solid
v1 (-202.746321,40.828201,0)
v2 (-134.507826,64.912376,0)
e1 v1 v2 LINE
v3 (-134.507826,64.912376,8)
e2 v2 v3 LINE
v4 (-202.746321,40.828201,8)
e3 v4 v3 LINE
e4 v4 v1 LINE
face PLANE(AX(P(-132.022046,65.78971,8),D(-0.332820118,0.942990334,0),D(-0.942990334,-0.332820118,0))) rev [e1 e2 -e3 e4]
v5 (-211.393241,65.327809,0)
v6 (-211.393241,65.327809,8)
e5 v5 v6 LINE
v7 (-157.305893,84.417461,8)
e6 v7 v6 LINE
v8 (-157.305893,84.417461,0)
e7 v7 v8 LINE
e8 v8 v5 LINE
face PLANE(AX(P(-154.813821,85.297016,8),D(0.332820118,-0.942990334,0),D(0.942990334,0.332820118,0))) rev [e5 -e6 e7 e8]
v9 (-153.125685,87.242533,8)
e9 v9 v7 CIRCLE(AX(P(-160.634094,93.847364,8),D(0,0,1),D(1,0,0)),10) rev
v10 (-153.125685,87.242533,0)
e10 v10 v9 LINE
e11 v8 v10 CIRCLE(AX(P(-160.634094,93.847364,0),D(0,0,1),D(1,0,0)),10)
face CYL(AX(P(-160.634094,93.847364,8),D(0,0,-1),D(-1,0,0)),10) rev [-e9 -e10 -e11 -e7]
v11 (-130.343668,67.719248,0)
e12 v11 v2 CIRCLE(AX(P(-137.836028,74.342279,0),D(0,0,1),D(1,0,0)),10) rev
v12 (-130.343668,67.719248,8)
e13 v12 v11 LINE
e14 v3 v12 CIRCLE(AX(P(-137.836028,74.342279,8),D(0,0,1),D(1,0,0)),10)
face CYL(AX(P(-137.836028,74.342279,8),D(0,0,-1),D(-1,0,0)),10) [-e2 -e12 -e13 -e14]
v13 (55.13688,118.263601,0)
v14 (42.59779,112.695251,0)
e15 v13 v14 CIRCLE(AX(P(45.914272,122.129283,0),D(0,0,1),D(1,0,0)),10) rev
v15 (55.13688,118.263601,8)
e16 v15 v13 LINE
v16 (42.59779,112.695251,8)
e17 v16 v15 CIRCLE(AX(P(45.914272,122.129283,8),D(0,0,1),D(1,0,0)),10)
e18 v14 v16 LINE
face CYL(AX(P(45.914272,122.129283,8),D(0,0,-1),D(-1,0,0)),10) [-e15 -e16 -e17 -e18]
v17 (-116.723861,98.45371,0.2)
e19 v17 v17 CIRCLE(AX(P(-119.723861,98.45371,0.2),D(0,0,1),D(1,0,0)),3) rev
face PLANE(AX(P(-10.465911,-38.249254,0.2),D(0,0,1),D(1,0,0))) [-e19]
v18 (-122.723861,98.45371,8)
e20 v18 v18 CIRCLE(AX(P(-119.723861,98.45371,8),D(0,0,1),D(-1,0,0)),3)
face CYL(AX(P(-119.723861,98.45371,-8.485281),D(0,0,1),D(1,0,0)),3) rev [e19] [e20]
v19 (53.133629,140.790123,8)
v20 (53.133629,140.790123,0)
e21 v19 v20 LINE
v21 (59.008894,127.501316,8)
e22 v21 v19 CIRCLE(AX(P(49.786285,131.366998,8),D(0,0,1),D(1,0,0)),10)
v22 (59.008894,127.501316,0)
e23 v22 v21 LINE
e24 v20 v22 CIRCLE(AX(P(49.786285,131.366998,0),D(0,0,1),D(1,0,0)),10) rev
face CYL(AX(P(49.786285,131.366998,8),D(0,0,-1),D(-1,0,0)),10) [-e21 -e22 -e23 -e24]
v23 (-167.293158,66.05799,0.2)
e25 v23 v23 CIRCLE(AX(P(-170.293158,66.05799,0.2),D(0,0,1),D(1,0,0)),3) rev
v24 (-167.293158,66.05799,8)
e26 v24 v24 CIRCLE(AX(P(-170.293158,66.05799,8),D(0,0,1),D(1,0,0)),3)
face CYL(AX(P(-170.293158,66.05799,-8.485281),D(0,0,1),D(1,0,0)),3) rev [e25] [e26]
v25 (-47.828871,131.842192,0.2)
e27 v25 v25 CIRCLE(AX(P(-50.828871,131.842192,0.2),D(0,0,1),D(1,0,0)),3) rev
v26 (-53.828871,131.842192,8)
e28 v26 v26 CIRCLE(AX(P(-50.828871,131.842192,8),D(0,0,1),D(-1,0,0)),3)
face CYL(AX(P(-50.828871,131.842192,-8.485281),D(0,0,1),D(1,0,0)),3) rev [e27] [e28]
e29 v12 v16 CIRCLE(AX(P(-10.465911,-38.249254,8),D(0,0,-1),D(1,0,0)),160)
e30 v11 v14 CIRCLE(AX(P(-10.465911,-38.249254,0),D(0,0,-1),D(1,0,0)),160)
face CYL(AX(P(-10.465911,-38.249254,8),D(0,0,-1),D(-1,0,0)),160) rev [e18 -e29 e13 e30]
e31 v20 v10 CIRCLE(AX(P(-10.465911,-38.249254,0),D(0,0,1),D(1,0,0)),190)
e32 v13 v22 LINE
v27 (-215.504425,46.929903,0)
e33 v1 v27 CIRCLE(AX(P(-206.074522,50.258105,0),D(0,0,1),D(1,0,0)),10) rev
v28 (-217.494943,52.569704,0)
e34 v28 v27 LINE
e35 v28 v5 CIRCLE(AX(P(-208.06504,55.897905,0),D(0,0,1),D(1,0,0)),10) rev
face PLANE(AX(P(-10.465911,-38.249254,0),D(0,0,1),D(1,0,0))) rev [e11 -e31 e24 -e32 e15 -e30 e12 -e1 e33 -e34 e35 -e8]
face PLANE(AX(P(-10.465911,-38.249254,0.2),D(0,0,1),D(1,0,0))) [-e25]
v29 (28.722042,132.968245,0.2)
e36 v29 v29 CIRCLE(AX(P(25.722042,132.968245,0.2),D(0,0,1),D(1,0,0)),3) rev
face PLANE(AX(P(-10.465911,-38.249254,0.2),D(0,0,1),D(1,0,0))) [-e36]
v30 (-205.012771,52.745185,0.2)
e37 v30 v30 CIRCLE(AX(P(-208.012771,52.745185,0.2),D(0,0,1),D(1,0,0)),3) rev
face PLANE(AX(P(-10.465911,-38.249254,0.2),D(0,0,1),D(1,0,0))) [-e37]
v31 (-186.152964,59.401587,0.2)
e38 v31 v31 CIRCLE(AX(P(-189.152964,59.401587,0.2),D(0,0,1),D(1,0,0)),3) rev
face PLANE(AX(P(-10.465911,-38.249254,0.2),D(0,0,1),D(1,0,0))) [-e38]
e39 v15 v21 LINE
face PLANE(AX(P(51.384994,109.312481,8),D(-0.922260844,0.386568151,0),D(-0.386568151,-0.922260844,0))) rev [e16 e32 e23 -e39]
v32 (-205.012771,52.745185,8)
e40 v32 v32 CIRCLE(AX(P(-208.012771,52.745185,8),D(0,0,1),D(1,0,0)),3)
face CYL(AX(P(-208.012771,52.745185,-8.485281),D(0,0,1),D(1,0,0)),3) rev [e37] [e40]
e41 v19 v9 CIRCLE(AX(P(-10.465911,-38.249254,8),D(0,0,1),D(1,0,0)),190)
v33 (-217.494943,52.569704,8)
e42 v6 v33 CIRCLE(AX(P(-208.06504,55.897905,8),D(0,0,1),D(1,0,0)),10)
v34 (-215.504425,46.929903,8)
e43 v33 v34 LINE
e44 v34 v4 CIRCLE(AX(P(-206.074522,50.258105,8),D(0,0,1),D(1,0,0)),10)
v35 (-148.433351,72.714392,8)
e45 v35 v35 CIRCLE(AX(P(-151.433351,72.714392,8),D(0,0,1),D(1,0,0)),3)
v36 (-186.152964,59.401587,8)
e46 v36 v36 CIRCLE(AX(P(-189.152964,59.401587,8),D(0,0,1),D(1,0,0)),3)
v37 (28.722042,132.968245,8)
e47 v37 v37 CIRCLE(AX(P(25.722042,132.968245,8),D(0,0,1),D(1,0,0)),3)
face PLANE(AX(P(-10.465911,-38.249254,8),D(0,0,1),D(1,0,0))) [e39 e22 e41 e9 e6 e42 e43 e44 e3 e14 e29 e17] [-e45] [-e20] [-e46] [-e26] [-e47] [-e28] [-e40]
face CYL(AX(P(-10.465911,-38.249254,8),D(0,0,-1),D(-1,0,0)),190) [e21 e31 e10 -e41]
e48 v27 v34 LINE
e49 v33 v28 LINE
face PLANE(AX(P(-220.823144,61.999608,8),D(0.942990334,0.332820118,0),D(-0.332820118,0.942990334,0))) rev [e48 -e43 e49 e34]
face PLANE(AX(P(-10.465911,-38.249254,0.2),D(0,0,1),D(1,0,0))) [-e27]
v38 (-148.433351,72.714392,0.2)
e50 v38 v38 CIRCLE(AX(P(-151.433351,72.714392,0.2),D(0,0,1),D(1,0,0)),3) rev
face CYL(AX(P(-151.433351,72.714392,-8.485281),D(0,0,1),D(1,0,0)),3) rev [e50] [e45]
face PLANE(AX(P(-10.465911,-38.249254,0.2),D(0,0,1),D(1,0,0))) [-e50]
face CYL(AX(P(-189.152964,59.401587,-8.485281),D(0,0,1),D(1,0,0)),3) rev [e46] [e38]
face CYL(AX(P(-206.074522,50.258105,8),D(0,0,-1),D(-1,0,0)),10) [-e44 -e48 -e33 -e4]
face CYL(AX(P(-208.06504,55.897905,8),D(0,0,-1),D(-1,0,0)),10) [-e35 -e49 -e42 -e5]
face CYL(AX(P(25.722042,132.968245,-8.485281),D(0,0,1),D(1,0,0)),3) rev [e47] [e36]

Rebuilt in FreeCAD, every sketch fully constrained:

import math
import FreeCAD as App
import Part
import Sketcher

V = App.Vector


def edges_at(feature, points):
    """Names of the edges that pass closest to the given points."""
    edges = feature.Shape.Edges
    near = lambda p: min(range(len(edges)), key=lambda i: edges[i].distToShape(Part.Vertex(*p))[0])
    return sorted({f"Edge{near(p) + 1}" for p in points})

doc = App.newDocument("Part")
params = doc.addObject("Spreadsheet::Sheet", "Params")
for row, (alias, value) in enumerate([
    ("sketch1_radius", "160 mm"),
    ("sketch1_radius2", "190 mm"),
    ("sketch1_length", "85 mm"),
    ("sketch1_length2", "70 mm"),
    ("pad1_length", "8 mm"),
    ("sketch2_diameter", "6 mm"),
    ("pocket1_length", "7.8 mm"),
    ("fillet_radius", "10 mm"),
], start=1):
    params.set(f"A{row}", alias)
    params.set(f"B{row}", "=" + value)
    params.setAlias(f"B{row}", alias)

body = doc.addObject("PartDesign::Body", "Body")

sketch1 = body.newObject("Sketcher::SketchObject", "Sketch")
sketch1.AttachmentSupport = (doc.getObject("XY_Plane"), [""])
sketch1.MapMode = "FlatFace"
sketch1.addGeometry([
    Part.LineSegment(V(-212.176224, 37.5, 0), V(-132.022046, 65.78971, 0)),
    Part.ArcOfCircle(Part.Circle(V(-10.465911, -38.249254, 0), V(0, 0, 1), 160), math.radians(67.258872), math.radians(139.440035)),
    Part.LineSegment(V(51.384994, 109.312481, 0), V(62.982038, 136.980306, 0)),
    Part.ArcOfCircle(Part.Circle(V(-10.465911, -38.249254, 0), V(0, 0, 1), 190), math.radians(67.258872), math.radians(139.440035)),
    Part.LineSegment(V(-154.813821, 85.297016, 0), V(-220.823144, 61.999608, 0)),
    Part.LineSegment(V(-220.823144, 61.999608, 0), V(-212.176224, 37.5, 0)),
], False)
sketch1.addConstraint([
    Sketcher.Constraint("Coincident", 0, 2, 1, 2),
    Sketcher.Constraint("Coincident", 1, 1, 2, 1),
    Sketcher.Constraint("Coincident", 2, 2, 3, 1),
    Sketcher.Constraint("Coincident", 3, 2, 4, 1),
    Sketcher.Constraint("Coincident", 4, 2, 5, 1),
    Sketcher.Constraint("Coincident", 5, 2, 0, 1),
    Sketcher.Constraint("Coincident", 3, 3, 1, 3),
    Sketcher.Constraint("Parallel", 0, 4),
    Sketcher.Constraint("Perpendicular", 4, 5),
    Sketcher.Constraint("Radius", 1, 160.0),
    Sketcher.Constraint("Radius", 3, 190.0),
    Sketcher.Constraint("Distance", 0, 85.0),
    Sketcher.Constraint("Distance", 4, 70.0),
    Sketcher.Constraint("DistanceY", -1, 1, 5, 2, 37.5),
    Sketcher.Constraint("DistanceX", 4, 2, 0, 2, 88.801099),
    Sketcher.Constraint("DistanceX", 1, 3, -1, 1, 10.465911),
    Sketcher.Constraint("DistanceY", -1, 1, 1, 1, 109.312481),
    Sketcher.Constraint("DistanceX", -1, 1, 2, 2, 62.982038),
    Sketcher.Constraint("DistanceX", 0, 2, 1, 1, 183.407039),
])
sketch1.setExpression("Constraints[9]", "Params.sketch1_radius")
sketch1.setExpression("Constraints[10]", "Params.sketch1_radius2")
sketch1.setExpression("Constraints[11]", "Params.sketch1_length")
sketch1.setExpression("Constraints[12]", "Params.sketch1_length2")
pad1 = body.newObject("PartDesign::Pad", "Pad")
pad1.Profile = sketch1
pad1.setExpression("Length", "Params.pad1_length")

sketch2 = body.newObject("Sketcher::SketchObject", "Sketch001")
sketch2.AttachmentSupport = (doc.getObject("XY_Plane"), [""])
sketch2.MapMode = "FlatFace"
sketch2.AttachmentOffset = App.Placement(V(0, 0, 8), App.Rotation())
sketch2.addGeometry([
    Part.Circle(V(-208.012771, 52.745185, 0), V(0, 0, 1), 3),
    Part.Circle(V(-189.152964, 59.401587, 0), V(0, 0, 1), 3),
    Part.Circle(V(-170.293158, 66.05799, 0), V(0, 0, 1), 3),
    Part.Circle(V(-151.433351, 72.714392, 0), V(0, 0, 1), 3),
    Part.Circle(V(25.722042, 132.968245, 0), V(0, 0, 1), 3),
    Part.Circle(V(-50.828871, 131.842192, 0), V(0, 0, 1), 3),
    Part.Circle(V(-119.723861, 98.45371, 0), V(0, 0, 1), 3),
], False)
sketch2.addConstraint([
    Sketcher.Constraint("Equal", 0, 1),
    Sketcher.Constraint("Equal", 1, 2),
    Sketcher.Constraint("Equal", 2, 3),
    Sketcher.Constraint("Equal", 3, 4),
    Sketcher.Constraint("Equal", 4, 5),
    Sketcher.Constraint("Equal", 5, 6),
    Sketcher.Constraint("Diameter", 0, 6.0),
    Sketcher.Constraint("DistanceX", 2, 3, 4, 3, 196.0152),
    Sketcher.Constraint("DistanceY", 3, 3, 5, 3, 59.1278),
    Sketcher.Constraint("DistanceX", 0, 3, 5, 3, 157.1839),
    Sketcher.Constraint("DistanceX", 0, 3, -1, 1, 208.012771),
    Sketcher.Constraint("DistanceY", -1, 1, 2, 3, 66.05799),
    Sketcher.Constraint("DistanceX", 3, 3, -1, 1, 151.433351),
    Sketcher.Constraint("DistanceY", -1, 1, 3, 3, 72.714392),
    Sketcher.Constraint("DistanceX", 6, 3, -1, 1, 119.723861),
    Sketcher.Constraint("DistanceY", -1, 1, 6, 3, 98.45371),
    Sketcher.Constraint("DistanceY", 1, 3, 4, 3, 73.566658),
    Sketcher.Constraint("DistanceY", 0, 3, 4, 3, 80.22306),
    Sketcher.Constraint("DistanceY", -1, 1, 0, 3, 52.745185),
    Sketcher.Constraint("DistanceX", 1, 3, -1, 1, 189.152964),
    Sketcher.Constraint("DistanceX", 2, 3, -1, 1, 170.293158),
])
sketch2.setExpression("Constraints[6]", "Params.sketch2_diameter")
pocket1 = body.newObject("PartDesign::Pocket", "Pocket")
pocket1.Profile = sketch2
pocket1.setExpression("Length", "Params.pocket1_length")
doc.recompute()

fillet = body.newObject("PartDesign::Fillet", "Fillet")
fillet.Base = (pocket1, edges_at(pocket1, [
    (-220.823, 62, 4),
    (-154.814, 85.297, 4),
    (62.982, 136.98, 4),
    (51.385, 109.312, 4),
    (-132.022, 65.79, 4),
    (-212.176, 37.5, 4),
]))
fillet.setExpression("Radius", "Params.fillet_radius")

doc.recompute()
